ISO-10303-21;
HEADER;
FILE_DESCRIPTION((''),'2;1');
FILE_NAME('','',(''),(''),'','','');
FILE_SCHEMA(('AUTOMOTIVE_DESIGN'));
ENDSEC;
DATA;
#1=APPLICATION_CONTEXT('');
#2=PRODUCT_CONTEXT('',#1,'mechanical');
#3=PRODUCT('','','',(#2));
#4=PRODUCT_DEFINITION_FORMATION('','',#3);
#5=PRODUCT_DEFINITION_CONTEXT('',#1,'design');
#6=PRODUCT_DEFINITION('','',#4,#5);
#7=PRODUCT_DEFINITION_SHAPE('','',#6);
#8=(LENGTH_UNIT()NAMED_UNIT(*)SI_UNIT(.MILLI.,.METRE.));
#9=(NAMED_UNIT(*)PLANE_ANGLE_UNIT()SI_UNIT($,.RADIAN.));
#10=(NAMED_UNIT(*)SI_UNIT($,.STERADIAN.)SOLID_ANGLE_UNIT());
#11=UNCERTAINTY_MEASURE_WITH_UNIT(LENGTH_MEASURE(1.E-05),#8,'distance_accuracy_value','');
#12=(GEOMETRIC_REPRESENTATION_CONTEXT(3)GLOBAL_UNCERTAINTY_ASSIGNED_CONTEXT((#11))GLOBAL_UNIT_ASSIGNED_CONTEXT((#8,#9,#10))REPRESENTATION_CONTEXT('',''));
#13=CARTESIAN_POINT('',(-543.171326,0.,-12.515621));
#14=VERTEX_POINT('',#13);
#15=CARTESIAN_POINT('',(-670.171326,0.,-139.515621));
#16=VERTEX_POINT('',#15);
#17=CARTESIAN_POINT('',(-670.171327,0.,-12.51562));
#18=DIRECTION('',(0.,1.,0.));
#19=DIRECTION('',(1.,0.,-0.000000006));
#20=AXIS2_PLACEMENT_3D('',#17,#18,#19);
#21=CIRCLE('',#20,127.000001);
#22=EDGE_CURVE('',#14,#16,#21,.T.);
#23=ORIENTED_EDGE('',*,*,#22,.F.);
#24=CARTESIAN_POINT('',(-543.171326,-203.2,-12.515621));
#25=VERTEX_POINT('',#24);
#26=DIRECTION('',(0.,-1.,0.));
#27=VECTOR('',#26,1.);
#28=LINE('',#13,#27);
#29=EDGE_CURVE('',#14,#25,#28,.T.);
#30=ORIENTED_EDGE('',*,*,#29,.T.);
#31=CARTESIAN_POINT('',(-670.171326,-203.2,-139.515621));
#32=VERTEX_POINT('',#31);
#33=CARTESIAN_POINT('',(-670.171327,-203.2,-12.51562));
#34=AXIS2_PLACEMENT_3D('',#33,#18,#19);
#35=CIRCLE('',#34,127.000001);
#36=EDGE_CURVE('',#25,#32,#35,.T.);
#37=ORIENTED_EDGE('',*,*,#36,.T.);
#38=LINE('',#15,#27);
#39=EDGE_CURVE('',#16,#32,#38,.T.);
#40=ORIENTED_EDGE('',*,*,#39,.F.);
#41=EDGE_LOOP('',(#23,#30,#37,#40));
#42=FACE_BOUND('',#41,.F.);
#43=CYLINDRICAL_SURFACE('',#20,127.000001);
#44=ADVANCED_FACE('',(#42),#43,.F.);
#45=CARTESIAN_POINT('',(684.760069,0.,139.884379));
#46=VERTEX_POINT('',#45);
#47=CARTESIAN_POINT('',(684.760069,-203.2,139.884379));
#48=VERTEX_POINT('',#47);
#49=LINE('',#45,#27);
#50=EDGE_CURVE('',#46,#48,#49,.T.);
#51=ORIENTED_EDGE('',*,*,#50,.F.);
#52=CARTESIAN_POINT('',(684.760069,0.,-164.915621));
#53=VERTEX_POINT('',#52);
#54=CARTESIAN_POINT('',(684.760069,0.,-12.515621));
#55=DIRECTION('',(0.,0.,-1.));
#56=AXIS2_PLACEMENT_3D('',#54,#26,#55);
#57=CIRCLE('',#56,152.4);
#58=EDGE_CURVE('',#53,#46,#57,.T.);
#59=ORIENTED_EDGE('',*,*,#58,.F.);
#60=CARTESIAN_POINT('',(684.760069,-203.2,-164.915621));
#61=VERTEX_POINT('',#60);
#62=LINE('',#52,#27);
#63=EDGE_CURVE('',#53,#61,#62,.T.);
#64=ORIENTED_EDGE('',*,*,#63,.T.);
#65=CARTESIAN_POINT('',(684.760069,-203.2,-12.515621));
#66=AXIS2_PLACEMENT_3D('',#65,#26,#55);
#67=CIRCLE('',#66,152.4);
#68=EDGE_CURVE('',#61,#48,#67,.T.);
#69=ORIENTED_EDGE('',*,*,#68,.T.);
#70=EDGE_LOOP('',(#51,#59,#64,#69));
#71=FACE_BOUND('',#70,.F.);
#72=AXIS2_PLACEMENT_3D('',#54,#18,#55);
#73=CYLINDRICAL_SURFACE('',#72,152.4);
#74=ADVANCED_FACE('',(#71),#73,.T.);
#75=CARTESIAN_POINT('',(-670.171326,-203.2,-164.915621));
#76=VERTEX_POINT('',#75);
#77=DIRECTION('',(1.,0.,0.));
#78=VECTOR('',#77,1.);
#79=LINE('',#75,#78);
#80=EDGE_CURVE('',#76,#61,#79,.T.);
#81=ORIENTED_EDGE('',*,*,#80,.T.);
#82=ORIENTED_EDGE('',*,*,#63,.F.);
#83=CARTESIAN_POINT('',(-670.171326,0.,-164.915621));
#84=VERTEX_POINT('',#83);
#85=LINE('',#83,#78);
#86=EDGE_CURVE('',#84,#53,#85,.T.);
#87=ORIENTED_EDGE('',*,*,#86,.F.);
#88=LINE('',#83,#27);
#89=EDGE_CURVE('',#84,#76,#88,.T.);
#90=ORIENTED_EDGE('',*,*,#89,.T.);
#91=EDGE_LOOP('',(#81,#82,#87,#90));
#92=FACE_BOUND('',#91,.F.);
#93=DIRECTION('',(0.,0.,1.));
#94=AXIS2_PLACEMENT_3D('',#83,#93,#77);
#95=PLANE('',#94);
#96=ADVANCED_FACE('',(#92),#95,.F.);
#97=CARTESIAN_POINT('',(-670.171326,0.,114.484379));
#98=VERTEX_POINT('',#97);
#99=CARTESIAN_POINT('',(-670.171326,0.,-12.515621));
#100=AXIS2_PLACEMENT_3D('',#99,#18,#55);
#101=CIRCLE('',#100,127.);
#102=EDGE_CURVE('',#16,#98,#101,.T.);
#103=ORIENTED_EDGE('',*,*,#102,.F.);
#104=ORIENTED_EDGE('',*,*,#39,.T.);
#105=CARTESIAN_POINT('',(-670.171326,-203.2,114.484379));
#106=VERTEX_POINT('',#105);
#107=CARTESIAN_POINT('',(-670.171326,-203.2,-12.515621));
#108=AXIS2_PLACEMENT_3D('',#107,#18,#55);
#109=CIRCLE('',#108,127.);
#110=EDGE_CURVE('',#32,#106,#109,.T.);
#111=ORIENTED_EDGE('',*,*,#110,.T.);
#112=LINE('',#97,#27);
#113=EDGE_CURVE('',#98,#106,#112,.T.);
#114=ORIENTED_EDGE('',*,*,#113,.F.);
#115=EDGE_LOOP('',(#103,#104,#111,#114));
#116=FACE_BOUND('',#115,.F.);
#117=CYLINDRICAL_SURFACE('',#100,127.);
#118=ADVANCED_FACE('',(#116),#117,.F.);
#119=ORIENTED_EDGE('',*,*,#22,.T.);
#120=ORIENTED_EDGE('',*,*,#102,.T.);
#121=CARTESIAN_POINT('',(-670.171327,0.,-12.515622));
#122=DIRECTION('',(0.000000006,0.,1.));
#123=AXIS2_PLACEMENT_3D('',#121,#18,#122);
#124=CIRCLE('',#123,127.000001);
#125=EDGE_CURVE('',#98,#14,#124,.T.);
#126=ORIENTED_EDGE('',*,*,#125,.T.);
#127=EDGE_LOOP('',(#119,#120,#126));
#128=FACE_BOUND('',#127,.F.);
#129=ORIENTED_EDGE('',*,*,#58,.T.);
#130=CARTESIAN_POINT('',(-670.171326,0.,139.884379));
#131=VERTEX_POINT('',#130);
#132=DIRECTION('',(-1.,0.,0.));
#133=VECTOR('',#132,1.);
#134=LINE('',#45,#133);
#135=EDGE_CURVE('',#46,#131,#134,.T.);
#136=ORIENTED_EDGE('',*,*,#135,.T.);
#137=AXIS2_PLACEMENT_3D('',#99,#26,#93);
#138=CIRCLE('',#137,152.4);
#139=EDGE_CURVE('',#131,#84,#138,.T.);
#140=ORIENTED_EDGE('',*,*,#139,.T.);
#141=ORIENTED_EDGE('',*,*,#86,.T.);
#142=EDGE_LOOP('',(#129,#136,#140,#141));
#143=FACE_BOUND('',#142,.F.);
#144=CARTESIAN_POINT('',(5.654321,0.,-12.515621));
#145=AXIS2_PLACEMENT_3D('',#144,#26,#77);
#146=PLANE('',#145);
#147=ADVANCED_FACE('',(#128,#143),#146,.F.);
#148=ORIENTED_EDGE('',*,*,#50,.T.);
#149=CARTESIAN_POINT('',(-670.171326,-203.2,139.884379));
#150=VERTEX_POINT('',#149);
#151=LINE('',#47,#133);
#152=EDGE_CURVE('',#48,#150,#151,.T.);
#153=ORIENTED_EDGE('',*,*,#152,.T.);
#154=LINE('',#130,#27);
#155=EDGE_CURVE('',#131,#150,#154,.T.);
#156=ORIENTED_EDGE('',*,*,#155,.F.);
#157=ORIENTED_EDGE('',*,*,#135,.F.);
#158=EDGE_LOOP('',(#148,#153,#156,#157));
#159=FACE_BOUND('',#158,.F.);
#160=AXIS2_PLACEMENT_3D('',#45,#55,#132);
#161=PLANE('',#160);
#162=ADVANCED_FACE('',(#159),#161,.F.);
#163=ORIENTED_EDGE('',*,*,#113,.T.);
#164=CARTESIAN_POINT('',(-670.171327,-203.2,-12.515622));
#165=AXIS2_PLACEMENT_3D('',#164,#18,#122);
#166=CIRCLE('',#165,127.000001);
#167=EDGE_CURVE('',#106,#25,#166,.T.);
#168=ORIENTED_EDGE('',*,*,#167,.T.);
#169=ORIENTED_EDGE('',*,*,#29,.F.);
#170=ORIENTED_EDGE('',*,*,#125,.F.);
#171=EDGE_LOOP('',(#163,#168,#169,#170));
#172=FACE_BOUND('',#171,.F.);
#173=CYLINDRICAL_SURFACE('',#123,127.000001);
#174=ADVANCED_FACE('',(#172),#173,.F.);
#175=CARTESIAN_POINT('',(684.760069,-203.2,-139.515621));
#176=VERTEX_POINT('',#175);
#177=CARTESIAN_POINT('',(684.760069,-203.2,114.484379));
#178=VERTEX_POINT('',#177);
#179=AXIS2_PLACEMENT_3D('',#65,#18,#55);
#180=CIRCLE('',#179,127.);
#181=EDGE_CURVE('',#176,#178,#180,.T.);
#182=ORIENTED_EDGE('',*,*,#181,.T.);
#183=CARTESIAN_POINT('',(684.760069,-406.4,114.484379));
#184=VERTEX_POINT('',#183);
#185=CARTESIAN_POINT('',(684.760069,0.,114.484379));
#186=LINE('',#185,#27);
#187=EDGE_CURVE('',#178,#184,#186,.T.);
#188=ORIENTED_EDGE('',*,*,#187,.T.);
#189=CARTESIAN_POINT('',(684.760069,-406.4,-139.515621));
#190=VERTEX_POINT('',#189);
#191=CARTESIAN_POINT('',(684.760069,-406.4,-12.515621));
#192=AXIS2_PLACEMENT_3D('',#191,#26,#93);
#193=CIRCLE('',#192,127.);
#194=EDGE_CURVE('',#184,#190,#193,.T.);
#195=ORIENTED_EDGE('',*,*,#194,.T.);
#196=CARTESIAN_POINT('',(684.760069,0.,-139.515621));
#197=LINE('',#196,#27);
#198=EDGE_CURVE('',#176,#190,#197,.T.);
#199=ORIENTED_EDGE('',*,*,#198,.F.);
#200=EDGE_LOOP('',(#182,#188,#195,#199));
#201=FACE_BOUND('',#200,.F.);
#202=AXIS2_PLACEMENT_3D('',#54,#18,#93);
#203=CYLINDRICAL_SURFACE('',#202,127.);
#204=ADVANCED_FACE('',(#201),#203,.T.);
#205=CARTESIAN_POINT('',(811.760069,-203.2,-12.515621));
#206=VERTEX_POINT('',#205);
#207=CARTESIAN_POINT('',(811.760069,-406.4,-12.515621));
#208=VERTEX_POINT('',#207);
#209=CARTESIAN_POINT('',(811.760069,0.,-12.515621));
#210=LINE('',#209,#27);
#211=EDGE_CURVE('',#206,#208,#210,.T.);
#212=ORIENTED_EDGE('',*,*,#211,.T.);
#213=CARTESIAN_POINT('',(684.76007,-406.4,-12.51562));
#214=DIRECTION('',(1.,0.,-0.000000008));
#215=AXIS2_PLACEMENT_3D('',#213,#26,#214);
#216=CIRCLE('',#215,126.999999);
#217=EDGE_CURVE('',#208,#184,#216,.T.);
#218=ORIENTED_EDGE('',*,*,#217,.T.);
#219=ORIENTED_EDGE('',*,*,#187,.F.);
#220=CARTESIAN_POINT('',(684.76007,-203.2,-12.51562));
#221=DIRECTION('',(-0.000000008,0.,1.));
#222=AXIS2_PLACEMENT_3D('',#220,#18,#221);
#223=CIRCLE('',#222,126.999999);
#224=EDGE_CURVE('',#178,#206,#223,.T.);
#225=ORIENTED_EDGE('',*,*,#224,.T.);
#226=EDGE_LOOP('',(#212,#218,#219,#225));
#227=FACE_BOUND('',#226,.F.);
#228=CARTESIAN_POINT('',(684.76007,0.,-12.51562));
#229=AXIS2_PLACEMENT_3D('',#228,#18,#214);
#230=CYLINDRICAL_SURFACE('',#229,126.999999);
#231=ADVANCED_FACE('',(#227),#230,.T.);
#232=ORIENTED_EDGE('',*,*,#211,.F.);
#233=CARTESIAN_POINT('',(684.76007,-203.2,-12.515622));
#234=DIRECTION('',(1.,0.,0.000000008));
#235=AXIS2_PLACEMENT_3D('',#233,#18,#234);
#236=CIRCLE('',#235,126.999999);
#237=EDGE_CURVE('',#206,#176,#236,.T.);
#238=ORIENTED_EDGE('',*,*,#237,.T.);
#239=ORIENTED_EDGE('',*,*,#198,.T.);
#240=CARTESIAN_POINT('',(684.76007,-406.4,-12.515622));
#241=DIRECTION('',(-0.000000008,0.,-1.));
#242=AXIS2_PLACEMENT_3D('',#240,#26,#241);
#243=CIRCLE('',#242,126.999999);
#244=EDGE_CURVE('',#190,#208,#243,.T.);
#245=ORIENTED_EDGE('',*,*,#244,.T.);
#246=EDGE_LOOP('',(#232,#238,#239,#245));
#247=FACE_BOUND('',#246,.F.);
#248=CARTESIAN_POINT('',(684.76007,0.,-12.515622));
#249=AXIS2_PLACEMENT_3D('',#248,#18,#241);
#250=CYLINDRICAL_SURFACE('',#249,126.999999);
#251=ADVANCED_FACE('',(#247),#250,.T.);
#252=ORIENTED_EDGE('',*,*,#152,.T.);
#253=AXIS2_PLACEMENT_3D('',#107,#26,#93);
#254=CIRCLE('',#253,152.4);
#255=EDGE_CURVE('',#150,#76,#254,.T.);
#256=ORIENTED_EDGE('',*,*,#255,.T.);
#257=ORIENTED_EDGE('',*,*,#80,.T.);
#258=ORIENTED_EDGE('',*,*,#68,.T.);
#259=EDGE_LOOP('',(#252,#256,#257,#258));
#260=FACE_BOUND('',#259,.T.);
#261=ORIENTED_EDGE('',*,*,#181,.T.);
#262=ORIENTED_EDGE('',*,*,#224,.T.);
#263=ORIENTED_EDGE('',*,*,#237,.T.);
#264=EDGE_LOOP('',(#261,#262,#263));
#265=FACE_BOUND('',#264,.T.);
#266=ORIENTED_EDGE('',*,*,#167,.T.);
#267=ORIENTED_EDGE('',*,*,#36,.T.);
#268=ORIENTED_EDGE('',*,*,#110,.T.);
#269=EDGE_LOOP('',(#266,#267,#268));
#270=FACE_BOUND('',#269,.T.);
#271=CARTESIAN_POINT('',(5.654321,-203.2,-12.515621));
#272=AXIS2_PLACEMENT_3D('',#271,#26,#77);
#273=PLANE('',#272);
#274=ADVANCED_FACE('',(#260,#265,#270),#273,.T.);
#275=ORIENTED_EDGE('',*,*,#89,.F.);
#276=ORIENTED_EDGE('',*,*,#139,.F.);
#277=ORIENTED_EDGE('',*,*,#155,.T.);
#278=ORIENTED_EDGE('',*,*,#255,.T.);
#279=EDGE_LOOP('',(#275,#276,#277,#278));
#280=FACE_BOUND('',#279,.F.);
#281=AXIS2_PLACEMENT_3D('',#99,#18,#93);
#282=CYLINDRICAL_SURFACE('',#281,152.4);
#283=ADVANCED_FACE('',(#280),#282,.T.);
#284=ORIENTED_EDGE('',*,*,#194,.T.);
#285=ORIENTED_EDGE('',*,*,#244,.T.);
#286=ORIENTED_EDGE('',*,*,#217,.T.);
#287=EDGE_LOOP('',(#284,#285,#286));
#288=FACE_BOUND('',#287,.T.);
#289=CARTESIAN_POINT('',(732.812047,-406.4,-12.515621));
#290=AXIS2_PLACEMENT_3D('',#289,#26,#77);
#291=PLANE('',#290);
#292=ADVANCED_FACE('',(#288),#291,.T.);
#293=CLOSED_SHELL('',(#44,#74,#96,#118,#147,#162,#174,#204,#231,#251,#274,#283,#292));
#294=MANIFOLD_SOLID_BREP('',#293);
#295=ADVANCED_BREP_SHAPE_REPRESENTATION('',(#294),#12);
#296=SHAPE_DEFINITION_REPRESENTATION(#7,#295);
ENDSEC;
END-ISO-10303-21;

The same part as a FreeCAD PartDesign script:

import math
import FreeCAD as App
import Part
import Sketcher
Q = App.Units.Quantity

doc = App.newDocument("Part")
params = doc.addObject("Spreadsheet::Sheet", "Params")
for row, (alias, value) in enumerate([
    ("sketch1_radius", "6 in"),
    ("sketch1_radius2", "5 in"),
    ("pad1_length", "8 in"),
    ("sketch2_radius", "5 in"),
    ("pad2_length", "16 in"),
], start=1):
    params.set(f"A{row}", alias)
    params.set(f"B{row}", "=" + value)
    params.setAlias(f"B{row}", alias)

body = doc.addObject("PartDesign::Body", "Body")

# Sketch on XZ plane
sketch1 = body.newObject("Sketcher::SketchObject", "Sketch")
sketch1.AttachmentSupport = (doc.getObject("XZ_Plane"), [""])
sketch1.MapMode = "FlatFace"
sketch1.addGeometry([
    Part.LineSegment(App.Vector(-670, -165, 0), App.Vector(685, -165, 0)),  # 0
    Part.ArcOfCircle(Part.Circle(App.Vector(685, -13, 0), App.Vector(0, 0, 1), 152), math.radians(-90), math.radians(90)),  # 1
    Part.LineSegment(App.Vector(685, 140, 0), App.Vector(-670, 140, 0)),  # 2
    Part.ArcOfCircle(Part.Circle(App.Vector(-670, -13, 0), App.Vector(0, 0, 1), 152), math.radians(90), math.radians(270)),  # 3
    Part.ArcOfCircle(Part.Circle(App.Vector(-670, -13, 0), App.Vector(0, 0, 1), 127), math.radians(0), math.radians(90)),  # 4
    Part.ArcOfCircle(Part.Circle(App.Vector(-670, -13, 0), App.Vector(0, 0, 1), 127), math.radians(-90), math.radians(0)),  # 5
    Part.ArcOfCircle(Part.Circle(App.Vector(-670, -13, 0), App.Vector(0, 0, 1), 127), math.radians(90), math.radians(270)),  # 6
    Part.ArcOfCircle(Part.Circle(App.Vector(685, -13, 0), App.Vector(0, 0, 1), 127), math.radians(90), math.radians(270)),  # 7
    Part.ArcOfCircle(Part.Circle(App.Vector(685, -13, 0), App.Vector(0, 0, 1), 127), math.radians(0), math.radians(90)),  # 8
    Part.ArcOfCircle(Part.Circle(App.Vector(685, -13, 0), App.Vector(0, 0, 1), 127), math.radians(-90), math.radians(0)),  # 9
], False)
sketch1.addConstraint([
    Sketcher.Constraint("Tangent", 0, 2, 1, 1),
    Sketcher.Constraint("Tangent", 1, 2, 2, 1),
    Sketcher.Constraint("Tangent", 2, 2, 3, 1),
    Sketcher.Constraint("Tangent", 3, 2, 0, 1),
    Sketcher.Constraint("Tangent", 4, 1, 5, 2),
    Sketcher.Constraint("Tangent", 5, 1, 6, 2),
    Sketcher.Constraint("Tangent", 6, 1, 4, 2),
    Sketcher.Constraint("Tangent", 7, 1, 8, 2),
    Sketcher.Constraint("Tangent", 8, 1, 9, 2),
    Sketcher.Constraint("Tangent", 9, 1, 7, 2),
    Sketcher.Constraint("Horizontal", 0),
    Sketcher.Constraint("Horizontal", 2),
    Sketcher.Constraint("Coincident", 4, 3, 3, 3),
    Sketcher.Constraint("Coincident", 7, 3, 1, 3),
    Sketcher.Constraint("Equal", 6, 7),
    Sketcher.Constraint("Horizontal", 9, 3, 4, 1),
    Sketcher.Constraint("Horizontal", 4, 1, 8, 1),
    Sketcher.Constraint("Vertical", 3, 2, 5, 1),
    Sketcher.Constraint("Vertical", 5, 1, 6, 1),
    Sketcher.Constraint("Vertical", 1, 2, 7, 1),
    Sketcher.Constraint("Vertical", 7, 1, 9, 1),
    Sketcher.Constraint("Radius", 1, Q("6 in")),
    Sketcher.Constraint("Radius", 4, Q("5 in")),
    Sketcher.Constraint("DistanceX", 0, 1, 0, 2, 1354.931395),
    Sketcher.Constraint("DistanceX", -1, 1, 1, 3, 684.760069),
    Sketcher.Constraint("DistanceY", 1, 3, -1, 1, 12.515621),
])
sketch1.setExpression("Constraints[21]", "Params.sketch1_radius")
sketch1.setExpression("Constraints[22]", "Params.sketch1_radius2")
pad1 = body.newObject("PartDesign::Pad", "Pad")
pad1.Profile = sketch1
pad1.setExpression("Length", "Params.pad1_length")

# Sketch on XZ plane
sketch2 = body.newObject("Sketcher::SketchObject", "Sketch001")
sketch2.AttachmentSupport = (doc.getObject("XZ_Plane"), [""])
sketch2.MapMode = "FlatFace"
sketch2.addGeometry([
    Part.ArcOfCircle(Part.Circle(App.Vector(685, -13, 0), App.Vector(0, 0, 1), 127), math.radians(0), math.radians(90)),
    Part.ArcOfCircle(Part.Circle(App.Vector(685, -13, 0), App.Vector(0, 0, 1), 127), math.radians(90), math.radians(270)),
    Part.ArcOfCircle(Part.Circle(App.Vector(685, -13, 0), App.Vector(0, 0, 1), 127), math.radians(-90), math.radians(0)),
], False)
sketch2.addConstraint([
    Sketcher.Constraint("Tangent", 0, 2, 1, 1),
    Sketcher.Constraint("Tangent", 1, 2, 2, 1),
    Sketcher.Constraint("Tangent", 2, 2, 0, 1),
    Sketcher.Constraint("Horizontal", 1, 3, 2, 2),
    Sketcher.Constraint("Vertical", 2, 3, 0, 2),
    Sketcher.Constraint("Vertical", 0, 2, 1, 2),
    Sketcher.Constraint("Radius", 0, Q("5 in")),
    Sketcher.Constraint("DistanceX", -1, 1, 0, 3, 684.76007),
    Sketcher.Constraint("DistanceY", 0, 3, -1, 1, 12.51562),
])
sketch2.setExpression("Constraints[6]", "Params.sketch2_radius")
pad2 = body.newObject("PartDesign::Pad", "Pad001")
pad2.Profile = sketch2
pad2.setExpression("Length", "Params.pad2_length")

doc.recompute()
